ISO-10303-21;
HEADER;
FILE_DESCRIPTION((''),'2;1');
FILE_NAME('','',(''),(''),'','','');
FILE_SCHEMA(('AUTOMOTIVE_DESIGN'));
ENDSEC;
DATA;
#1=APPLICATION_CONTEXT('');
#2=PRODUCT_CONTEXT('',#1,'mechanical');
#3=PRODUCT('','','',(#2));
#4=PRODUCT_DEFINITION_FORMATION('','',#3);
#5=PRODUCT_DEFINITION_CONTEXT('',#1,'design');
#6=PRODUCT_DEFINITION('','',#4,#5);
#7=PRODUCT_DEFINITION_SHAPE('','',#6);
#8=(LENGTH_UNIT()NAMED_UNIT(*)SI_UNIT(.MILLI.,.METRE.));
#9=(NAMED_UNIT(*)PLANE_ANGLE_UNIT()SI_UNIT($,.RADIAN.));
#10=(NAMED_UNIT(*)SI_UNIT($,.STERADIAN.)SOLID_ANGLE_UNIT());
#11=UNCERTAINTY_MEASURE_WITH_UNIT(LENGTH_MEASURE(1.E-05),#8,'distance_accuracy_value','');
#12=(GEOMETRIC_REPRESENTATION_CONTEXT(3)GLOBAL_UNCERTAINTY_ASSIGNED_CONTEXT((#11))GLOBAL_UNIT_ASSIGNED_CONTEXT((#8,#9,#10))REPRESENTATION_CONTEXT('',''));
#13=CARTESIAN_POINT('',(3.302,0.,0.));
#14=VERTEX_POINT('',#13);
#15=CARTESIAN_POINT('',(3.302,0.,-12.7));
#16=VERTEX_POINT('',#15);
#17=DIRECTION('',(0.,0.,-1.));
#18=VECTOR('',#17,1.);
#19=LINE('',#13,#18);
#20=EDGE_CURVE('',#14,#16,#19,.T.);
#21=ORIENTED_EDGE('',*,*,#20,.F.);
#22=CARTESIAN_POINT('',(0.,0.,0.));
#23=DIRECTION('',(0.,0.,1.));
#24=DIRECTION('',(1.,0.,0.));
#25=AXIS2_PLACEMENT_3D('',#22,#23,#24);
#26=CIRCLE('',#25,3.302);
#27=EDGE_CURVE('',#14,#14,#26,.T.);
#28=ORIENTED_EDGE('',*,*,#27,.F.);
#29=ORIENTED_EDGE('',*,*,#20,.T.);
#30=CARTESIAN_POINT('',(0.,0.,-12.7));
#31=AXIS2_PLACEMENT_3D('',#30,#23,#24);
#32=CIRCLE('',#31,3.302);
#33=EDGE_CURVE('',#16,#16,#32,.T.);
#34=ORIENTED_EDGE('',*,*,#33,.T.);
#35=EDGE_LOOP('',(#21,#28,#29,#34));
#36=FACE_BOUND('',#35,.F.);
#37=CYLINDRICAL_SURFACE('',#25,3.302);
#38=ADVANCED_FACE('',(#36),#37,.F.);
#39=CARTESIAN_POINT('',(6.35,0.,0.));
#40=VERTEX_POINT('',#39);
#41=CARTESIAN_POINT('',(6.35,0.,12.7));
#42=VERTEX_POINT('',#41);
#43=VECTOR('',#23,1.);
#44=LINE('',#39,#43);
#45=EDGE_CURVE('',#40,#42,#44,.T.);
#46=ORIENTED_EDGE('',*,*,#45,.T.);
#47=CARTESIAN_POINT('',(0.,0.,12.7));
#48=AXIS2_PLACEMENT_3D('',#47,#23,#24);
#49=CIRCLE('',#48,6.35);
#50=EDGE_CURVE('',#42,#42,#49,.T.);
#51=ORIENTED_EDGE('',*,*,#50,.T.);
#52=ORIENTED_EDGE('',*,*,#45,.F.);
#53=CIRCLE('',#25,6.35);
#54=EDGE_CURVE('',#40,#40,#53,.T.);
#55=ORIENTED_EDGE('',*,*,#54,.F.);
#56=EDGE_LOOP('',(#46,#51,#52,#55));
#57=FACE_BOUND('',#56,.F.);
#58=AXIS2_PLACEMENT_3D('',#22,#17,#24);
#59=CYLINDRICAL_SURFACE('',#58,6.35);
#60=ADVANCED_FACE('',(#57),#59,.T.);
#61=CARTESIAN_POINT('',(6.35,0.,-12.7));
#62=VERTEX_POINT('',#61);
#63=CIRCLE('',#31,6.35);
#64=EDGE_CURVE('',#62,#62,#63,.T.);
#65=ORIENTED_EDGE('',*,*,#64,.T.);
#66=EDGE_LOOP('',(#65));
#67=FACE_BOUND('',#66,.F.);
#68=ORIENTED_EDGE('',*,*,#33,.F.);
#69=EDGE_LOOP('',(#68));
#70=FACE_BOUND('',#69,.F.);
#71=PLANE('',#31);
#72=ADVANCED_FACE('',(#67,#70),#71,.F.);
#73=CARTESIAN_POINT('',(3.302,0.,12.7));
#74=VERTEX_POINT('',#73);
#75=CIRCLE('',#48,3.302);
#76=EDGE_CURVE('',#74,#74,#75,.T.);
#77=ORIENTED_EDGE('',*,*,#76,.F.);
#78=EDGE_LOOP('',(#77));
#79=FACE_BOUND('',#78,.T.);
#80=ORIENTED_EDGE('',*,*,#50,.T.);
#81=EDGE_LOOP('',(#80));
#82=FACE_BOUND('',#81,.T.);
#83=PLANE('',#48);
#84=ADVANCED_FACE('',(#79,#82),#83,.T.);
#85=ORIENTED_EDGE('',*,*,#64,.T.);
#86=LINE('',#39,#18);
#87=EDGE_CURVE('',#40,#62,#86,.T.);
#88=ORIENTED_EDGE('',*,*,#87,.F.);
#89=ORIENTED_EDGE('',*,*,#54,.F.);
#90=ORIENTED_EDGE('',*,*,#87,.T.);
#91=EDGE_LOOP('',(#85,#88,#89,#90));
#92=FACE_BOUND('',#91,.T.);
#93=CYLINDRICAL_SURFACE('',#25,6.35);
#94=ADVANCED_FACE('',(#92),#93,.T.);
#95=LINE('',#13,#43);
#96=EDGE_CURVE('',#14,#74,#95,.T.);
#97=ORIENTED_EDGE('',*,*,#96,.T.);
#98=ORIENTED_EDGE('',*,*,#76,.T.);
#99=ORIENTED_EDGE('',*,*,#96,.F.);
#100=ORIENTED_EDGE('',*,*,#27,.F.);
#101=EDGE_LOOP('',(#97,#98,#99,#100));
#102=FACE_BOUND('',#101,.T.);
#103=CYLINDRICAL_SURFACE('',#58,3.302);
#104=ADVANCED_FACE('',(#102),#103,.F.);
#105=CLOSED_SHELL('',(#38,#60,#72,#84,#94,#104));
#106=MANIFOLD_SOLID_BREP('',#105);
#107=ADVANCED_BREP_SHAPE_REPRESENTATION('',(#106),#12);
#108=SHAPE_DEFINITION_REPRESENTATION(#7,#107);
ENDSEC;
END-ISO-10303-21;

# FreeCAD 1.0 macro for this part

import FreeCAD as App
import Part
import Sketcher
from FreeCAD import Vector
Q = App.Units.Quantity

doc = App.newDocument("Part")
body = doc.addObject("PartDesign::Body", "Body")

# Sketch on XY plane
sketch1 = body.newObject("Sketcher::SketchObject", "Sketch")
sketch1.AttachmentSupport = (doc.getObject("XY_Plane"), [""])
sketch1.MapMode = "FlatFace"
sketch1.addGeometry(Part.Circle(Vector(0, 0, 0), Vector(0, 0, 1), 6.3), False)
sketch1.addGeometry(Part.Circle(Vector(0, 0, 0), Vector(0, 0, 1), 3.3), False)
sketch1.addConstraint(Sketcher.Constraint("Coincident", 0, 3, -1, 1))
sketch1.addConstraint(Sketcher.Constraint("Coincident", 1, 3, -1, 1))
sketch1.addConstraint(Sketcher.Constraint("Diameter", 0, Q("0.5 in")))
sketch1.addConstraint(Sketcher.Constraint("Diameter", 1, Q("0.26 in")))
pad1 = body.newObject("PartDesign::Pad", "Pad")
pad1.Profile = sketch1
pad1.Length = Q("1 in")
pad1.Midplane = True

doc.recompute()
